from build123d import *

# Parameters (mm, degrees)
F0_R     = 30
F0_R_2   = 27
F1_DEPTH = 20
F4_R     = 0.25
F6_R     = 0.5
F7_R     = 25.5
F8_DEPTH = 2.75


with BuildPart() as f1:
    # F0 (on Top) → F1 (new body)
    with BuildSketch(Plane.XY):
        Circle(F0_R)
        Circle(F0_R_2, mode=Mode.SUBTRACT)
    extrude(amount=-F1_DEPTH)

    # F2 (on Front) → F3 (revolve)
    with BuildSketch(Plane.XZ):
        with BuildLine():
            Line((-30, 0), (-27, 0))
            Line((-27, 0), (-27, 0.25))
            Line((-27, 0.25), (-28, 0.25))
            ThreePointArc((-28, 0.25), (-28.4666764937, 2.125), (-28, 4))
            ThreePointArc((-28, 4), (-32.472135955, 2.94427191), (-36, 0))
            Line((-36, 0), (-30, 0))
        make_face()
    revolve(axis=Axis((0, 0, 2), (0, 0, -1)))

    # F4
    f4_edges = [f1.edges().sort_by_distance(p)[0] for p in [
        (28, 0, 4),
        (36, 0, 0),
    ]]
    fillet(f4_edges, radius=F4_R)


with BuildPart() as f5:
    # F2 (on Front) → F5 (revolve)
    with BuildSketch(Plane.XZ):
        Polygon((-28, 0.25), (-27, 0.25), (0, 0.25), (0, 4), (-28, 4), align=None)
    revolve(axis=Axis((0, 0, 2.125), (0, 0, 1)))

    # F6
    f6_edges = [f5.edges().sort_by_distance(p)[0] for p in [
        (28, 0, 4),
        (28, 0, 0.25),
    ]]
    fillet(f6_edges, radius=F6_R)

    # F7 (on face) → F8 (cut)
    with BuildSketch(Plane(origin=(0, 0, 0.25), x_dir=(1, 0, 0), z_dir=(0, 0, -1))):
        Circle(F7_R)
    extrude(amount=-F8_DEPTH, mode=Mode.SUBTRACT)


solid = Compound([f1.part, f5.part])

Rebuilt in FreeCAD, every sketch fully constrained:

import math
import FreeCAD as App
import Part
import Sketcher


def edges_at(feature, points):
    """Names of the edges that pass closest to the given points."""
    edges = feature.Shape.Edges
    near = lambda p: min(range(len(edges)), key=lambda i: edges[i].distToShape(Part.Vertex(*p))[0])
    return sorted({f"Edge{near(p) + 1}" for p in points})

doc = App.newDocument("Part")
body = doc.addObject("PartDesign::Body", "Body")

sketch1 = doc.addObject("Sketcher::SketchObject", "Sketch")
body.addObject(sketch1)
sketch1.AttachmentSupport = (doc.XY_Plane, [""])
sketch1.MapMode = "FlatFace"
sketch1.addGeometry([
    Part.Circle(App.Vector(0, 0, 0), App.Vector(0, 0, 1), 30),
    Part.Circle(App.Vector(0, 0, 0), App.Vector(0, 0, 1), 27),
], False)
sketch1.addConstraint([
    Sketcher.Constraint("Coincident", 0, 3, -1, 1),
    Sketcher.Constraint("Coincident", 1, 3, -1, 1),
    Sketcher.Constraint("Diameter", 0, 60.0),
    Sketcher.Constraint("Diameter", 1, 54.0),
])
pad1 = doc.addObject("PartDesign::Pad", "Pad")
body.addObject(pad1)
pad1.Profile = sketch1
pad1.Length = 20
pad1.Reversed = True

sketch2 = doc.addObject("Sketcher::SketchObject", "Sketch001")
body.addObject(sketch2)
sketch2.AttachmentSupport = (doc.XZ_Plane, [""])
sketch2.MapMode = "FlatFace"
sketch2.addGeometry([
    Part.LineSegment(App.Vector(-27, 0, 0), App.Vector(-27, 0.25, 0)),
    Part.LineSegment(App.Vector(-27, 0.25, 0), App.Vector(-28, 0.25, 0)),
    Part.ArcOfCircle(Part.Circle(App.Vector(-24.47, 2.12, 0), App.Vector(0, 0, 1), 4), math.radians(152), math.radians(208)),
    Part.ArcOfCircle(Part.Circle(App.Vector(-28, -6, 0), App.Vector(0, 0, 1), 10), math.radians(90), math.radians(143)),
    Part.LineSegment(App.Vector(-36, 0, 0), App.Vector(-27, 0, 0)),
], False)
sketch2.addConstraint([
    Sketcher.Constraint("Coincident", 0, 2, 1, 1),
    Sketcher.Constraint("Coincident", 1, 2, 2, 2),
    Sketcher.Constraint("Coincident", 2, 1, 3, 1),
    Sketcher.Constraint("Coincident", 3, 2, 4, 1),
    Sketcher.Constraint("Coincident", 4, 2, 0, 1),
    Sketcher.Constraint("Vertical", 0),
    Sketcher.Constraint("Horizontal", 1),
    Sketcher.Constraint("Horizontal", 4),
    Sketcher.Constraint("PointOnObject", 3, 2, -1),
    Sketcher.Constraint("Vertical", 3, 3, 1, 2),
    Sketcher.Constraint("Vertical", 1, 2, 2, 1),
    Sketcher.Constraint("Radius", 2, 4.0),
    Sketcher.Constraint("Radius", 3, 10.0),
    Sketcher.Constraint("DistanceX", 1, 2, 1, 1, 1.0),
    Sketcher.Constraint("DistanceX", 4, 1, 4, 2, 9.0),
    Sketcher.Constraint("DistanceX", 3, 3, -1, 1, 28.0),
    Sketcher.Constraint("DistanceY", 0, 1, 0, 2, 0.25),
])
revolution = doc.addObject("PartDesign::Revolution", "Revolution")
body.addObject(revolution)
revolution.Profile = sketch2
revolution.ReferenceAxis = (sketch2, ["V_Axis"])
revolution.Angle = 360
doc.recompute()

fillet = doc.addObject("PartDesign::Fillet", "Fillet")
body.addObject(fillet)
fillet.Base = (revolution, edges_at(revolution, [(28, 0, 4), (36, 0, 0)]))
fillet.Radius = 0.25
body2 = doc.addObject("PartDesign::Body", "Body001")

sketch3 = doc.addObject("Sketcher::SketchObject", "Sketch002")
body2.addObject(sketch3)
sketch3.AttachmentSupport = (doc.getObject("XZ_Plane001"), [""])
sketch3.MapMode = "FlatFace"
sketch3.addGeometry([
    Part.LineSegment(App.Vector(-28, 0.2, 0), App.Vector(0, 0.2, 0)),
    Part.LineSegment(App.Vector(0, 0.2, 0), App.Vector(0, 4, 0)),
    Part.LineSegment(App.Vector(0, 4, 0), App.Vector(-28, 4, 0)),
    Part.LineSegment(App.Vector(-28, 4, 0), App.Vector(-28, 0.2, 0)),
], False)
sketch3.addConstraint([
    Sketcher.Constraint("Coincident", 0, 2, 1, 1),
    Sketcher.Constraint("Coincident", 1, 2, 2, 1),
    Sketcher.Constraint("Coincident", 2, 2, 3, 1),
    Sketcher.Constraint("Coincident", 3, 2, 0, 1),
    Sketcher.Constraint("Horizontal", 0),
    Sketcher.Constraint("Vertical", 1),
    Sketcher.Constraint("Horizontal", 2),
    Sketcher.Constraint("Vertical", 3),
    Sketcher.Constraint("PointOnObject", 0, 2, -2),
    Sketcher.Constraint("DistanceX", 0, 1, 0, 2, 28.0),
    Sketcher.Constraint("DistanceY", -1, 1, 1, 2, 4.0),
    Sketcher.Constraint("DistanceY", 1, 1, 1, 2, 3.75),
])
revolution2 = doc.addObject("PartDesign::Revolution", "Revolution001")
body2.addObject(revolution2)
revolution2.Profile = sketch3
revolution2.ReferenceAxis = (sketch3, ["V_Axis"])
revolution2.Angle = 360
doc.recompute()

fillet2 = doc.addObject("PartDesign::Fillet", "Fillet001")
body2.addObject(fillet2)
fillet2.Base = (revolution2, edges_at(revolution2, [(28, 0, 4), (28, 0, 0.25)]))
fillet2.Radius = 0.5

sketch4 = doc.addObject("Sketcher::SketchObject", "Sketch003")
body2.addObject(sketch4)
sketch4.AttachmentSupport = (doc.getObject("XY_Plane001"), [""])
sketch4.MapMode = "FlatFace"
sketch4.AttachmentOffset = App.Placement(App.Vector(0, 0, 0.25), App.Rotation())
sketch4.addGeometry(Part.Circle(App.Vector(0, 0, 0), App.Vector(0, 0, 1), 26), False)
sketch4.addConstraint([
    Sketcher.Constraint("Coincident", 0, 3, -1, 1),
    Sketcher.Constraint("Diameter", 0, 51.0),
])
pocket1 = doc.addObject("PartDesign::Pocket", "Pocket")
body2.addObject(pocket1)
pocket1.Profile = sketch4
pocket1.Length = 2.75
pocket1.Reversed = True

doc.recompute()
